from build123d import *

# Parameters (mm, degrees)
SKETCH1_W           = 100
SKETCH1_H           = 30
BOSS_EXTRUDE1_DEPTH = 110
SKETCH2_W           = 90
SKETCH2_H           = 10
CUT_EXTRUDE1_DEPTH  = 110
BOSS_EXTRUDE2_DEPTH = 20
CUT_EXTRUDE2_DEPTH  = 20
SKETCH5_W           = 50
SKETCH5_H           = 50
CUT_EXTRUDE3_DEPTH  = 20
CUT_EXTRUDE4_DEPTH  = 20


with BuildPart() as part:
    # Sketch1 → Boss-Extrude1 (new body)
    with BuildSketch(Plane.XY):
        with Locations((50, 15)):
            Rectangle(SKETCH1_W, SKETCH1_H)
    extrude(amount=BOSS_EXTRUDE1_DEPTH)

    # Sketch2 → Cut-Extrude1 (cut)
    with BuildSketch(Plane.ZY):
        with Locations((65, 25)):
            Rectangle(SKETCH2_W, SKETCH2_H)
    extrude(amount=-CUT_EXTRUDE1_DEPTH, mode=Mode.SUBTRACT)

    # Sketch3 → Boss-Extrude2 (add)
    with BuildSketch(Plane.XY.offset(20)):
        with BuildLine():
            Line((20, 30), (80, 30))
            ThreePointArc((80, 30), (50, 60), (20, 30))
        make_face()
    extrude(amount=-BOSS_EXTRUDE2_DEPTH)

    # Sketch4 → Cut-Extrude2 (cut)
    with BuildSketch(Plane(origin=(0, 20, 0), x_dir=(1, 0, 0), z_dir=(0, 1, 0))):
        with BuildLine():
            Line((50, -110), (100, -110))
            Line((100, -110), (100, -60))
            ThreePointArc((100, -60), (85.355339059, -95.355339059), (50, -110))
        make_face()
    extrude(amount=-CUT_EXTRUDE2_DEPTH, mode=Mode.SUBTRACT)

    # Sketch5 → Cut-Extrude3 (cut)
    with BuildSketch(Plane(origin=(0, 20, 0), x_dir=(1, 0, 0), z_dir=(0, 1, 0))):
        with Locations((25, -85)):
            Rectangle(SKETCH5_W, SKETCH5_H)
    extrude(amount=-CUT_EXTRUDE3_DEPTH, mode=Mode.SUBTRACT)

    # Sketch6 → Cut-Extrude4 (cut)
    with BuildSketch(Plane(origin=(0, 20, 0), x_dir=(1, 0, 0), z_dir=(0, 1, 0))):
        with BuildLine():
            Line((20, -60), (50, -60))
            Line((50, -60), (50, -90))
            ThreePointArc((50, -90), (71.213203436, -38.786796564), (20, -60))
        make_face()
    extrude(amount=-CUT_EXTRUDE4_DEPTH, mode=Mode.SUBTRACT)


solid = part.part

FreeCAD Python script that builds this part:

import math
import FreeCAD as App
import Part
import Sketcher
from FreeCAD import Vector
Q = App.Units.Quantity

doc = App.newDocument("Part")
body = doc.addObject("PartDesign::Body", "Body")

# Sketch on XY plane
sketch1 = doc.addObject("Sketcher::SketchObject", "Sketch")
body.addObject(sketch1)
sketch1.AttachmentSupport = (doc.XY_Plane, [""])
sketch1.MapMode = "FlatFace"
sketch1.addGeometry(Part.LineSegment(Vector(0, 30, 0), Vector(0, 0, 0)), False)
sketch1.addGeometry(Part.LineSegment(Vector(0, 0, 0), Vector(100, 0, 0)), False)
sketch1.addGeometry(Part.LineSegment(Vector(100, 0, 0), Vector(100, 30, 0)), False)
sketch1.addGeometry(Part.LineSegment(Vector(100, 30, 0), Vector(0, 30, 0)), False)
sketch1.addConstraint(Sketcher.Constraint("Coincident", 0, 2, 1, 1))
sketch1.addConstraint(Sketcher.Constraint("Coincident", 1, 2, 2, 1))
sketch1.addConstraint(Sketcher.Constraint("Coincident", 2, 2, 3, 1))
sketch1.addConstraint(Sketcher.Constraint("Coincident", 3, 2, 0, 1))
sketch1.addConstraint(Sketcher.Constraint("Vertical", 0))
sketch1.addConstraint(Sketcher.Constraint("Horizontal", 1))
sketch1.addConstraint(Sketcher.Constraint("Vertical", 2))
sketch1.addConstraint(Sketcher.Constraint("Horizontal", 3))
sketch1.addConstraint(Sketcher.Constraint("Coincident", 0, 2, -1, 1))
sketch1.addConstraint(Sketcher.Constraint("DistanceX", 1, 1, 1, 2, Q("100 mm")))
sketch1.addConstraint(Sketcher.Constraint("DistanceY", 0, 2, 0, 1, Q("30 mm")))
pad1 = doc.addObject("PartDesign::Pad", "Pad")
body.addObject(pad1)
pad1.Profile = sketch1
pad1.Length = 110

# Sketch on YZ plane
sketch2 = doc.addObject("Sketcher::SketchObject", "Sketch001")
body.addObject(sketch2)
sketch2.AttachmentSupport = (doc.YZ_Plane, [""])
sketch2.MapMode = "FlatFace"
sketch2.addGeometry(Part.LineSegment(Vector(30, 20, 0), Vector(20, 20, 0)), False)
sketch2.addGeometry(Part.LineSegment(Vector(20, 20, 0), Vector(20, 110, 0)), False)
sketch2.addGeometry(Part.LineSegment(Vector(20, 110, 0), Vector(30, 110, 0)), False)
sketch2.addGeometry(Part.LineSegment(Vector(30, 110, 0), Vector(30, 20, 0)), False)
sketch2.addConstraint(Sketcher.Constraint("Coincident", 0, 2, 1, 1))
sketch2.addConstraint(Sketcher.Constraint("Coincident", 1, 2, 2, 1))
sketch2.addConstraint(Sketcher.Constraint("Coincident", 2, 2, 3, 1))
sketch2.addConstraint(Sketcher.Constraint("Coincident", 3, 2, 0, 1))
sketch2.addConstraint(Sketcher.Constraint("Horizontal", 0))
sketch2.addConstraint(Sketcher.Constraint("Vertical", 1))
sketch2.addConstraint(Sketcher.Constraint("Horizontal", 2))
sketch2.addConstraint(Sketcher.Constraint("Vertical", 3))
sketch2.addConstraint(Sketcher.Constraint("DistanceX", 0, 2, 0, 1, Q("10 mm")))
sketch2.addConstraint(Sketcher.Constraint("DistanceY", 1, 1, 1, 2, Q("90 mm")))
sketch2.addConstraint(Sketcher.Constraint("DistanceX", -1, 1, 0, 2, Q("20 mm")))
sketch2.addConstraint(Sketcher.Constraint("DistanceY", -1, 1, 0, 2, Q("20 mm")))
pocket1 = doc.addObject("PartDesign::Pocket", "Pocket")
body.addObject(pocket1)
pocket1.Profile = sketch2
pocket1.Length = 110
pocket1.Reversed = True

# Sketch on XY plane
sketch3 = doc.addObject("Sketcher::SketchObject", "Sketch002")
body.addObject(sketch3)
sketch3.AttachmentSupport = (doc.XY_Plane, [""])
sketch3.MapMode = "FlatFace"
sketch3.AttachmentOffset = App.Placement(Vector(0, 0, 20), App.Rotation())
sketch3.addGeometry(Part.LineSegment(Vector(20, 30, 0), Vector(80, 30, 0)), False)
sketch3.addGeometry(Part.ArcOfCircle(Part.Circle(Vector(50, 30, 0), Vector(0, 0, 1), 30), math.radians(0), math.radians(180)), False)
sketch3.addConstraint(Sketcher.Constraint("Coincident", 0, 1, 1, 2))
sketch3.addConstraint(Sketcher.Constraint("Coincident", 1, 1, 0, 2))
sketch3.addConstraint(Sketcher.Constraint("Horizontal", 0))
sketch3.addConstraint(Sketcher.Constraint("Horizontal", 1, 3, 0, 1))
sketch3.addConstraint(Sketcher.Constraint("Radius", 1, Q("30 mm")))
sketch3.addConstraint(Sketcher.Constraint("DistanceX", -1, 1, 1, 3, Q("50 mm")))
sketch3.addConstraint(Sketcher.Constraint("DistanceY", -1, 1, 1, 3, Q("30 mm")))
pad2 = doc.addObject("PartDesign::Pad", "Pad001")
body.addObject(pad2)
pad2.Profile = sketch3
pad2.Length = 20
pad2.Reversed = True

# Sketch on XZ plane
sketch4 = doc.addObject("Sketcher::SketchObject", "Sketch003")
body.addObject(sketch4)
sketch4.AttachmentSupport = (doc.XZ_Plane, [""])
sketch4.MapMode = "FlatFace"
sketch4.AttachmentOffset = App.Placement(Vector(0, 0, -20), App.Rotation())
sketch4.addGeometry(Part.LineSegment(Vector(50, 110, 0), Vector(100, 110, 0)), False)
sketch4.addGeometry(Part.LineSegment(Vector(100, 110, 0), Vector(100, 60, 0)), False)
sketch4.addGeometry(Part.ArcOfCircle(Part.Circle(Vector(50, 60, 0), Vector(0, 0, 1), 50), math.radians(0), math.radians(90)), False)
sketch4.addConstraint(Sketcher.Constraint("Coincident", 0, 2, 1, 1))
sketch4.addConstraint(Sketcher.Constraint("Tangent", 1, 2, 2, 1))
sketch4.addConstraint(Sketcher.Constraint("Tangent", 2, 2, 0, 1))
sketch4.addConstraint(Sketcher.Constraint("Horizontal", 0))
sketch4.addConstraint(Sketcher.Constraint("Vertical", 1))
sketch4.addConstraint(Sketcher.Constraint("Radius", 2, Q("50 mm")))
sketch4.addConstraint(Sketcher.Constraint("DistanceX", -1, 1, 2, 3, Q("50 mm")))
sketch4.addConstraint(Sketcher.Constraint("DistanceY", -1, 1, 2, 3, Q("60 mm")))
pocket2 = doc.addObject("PartDesign::Pocket", "Pocket001")
body.addObject(pocket2)
pocket2.Profile = sketch4
pocket2.Length = 20
pocket2.Reversed = True

# Sketch on XZ plane
sketch5 = doc.addObject("Sketcher::SketchObject", "Sketch004")
body.addObject(sketch5)
sketch5.AttachmentSupport = (doc.XZ_Plane, [""])
sketch5.MapMode = "FlatFace"
sketch5.AttachmentOffset = App.Placement(Vector(0, 0, -20), App.Rotation())
sketch5.addGeometry(Part.LineSegment(Vector(0, 60, 0), Vector(0, 110, 0)), False)
sketch5.addGeometry(Part.LineSegment(Vector(0, 110, 0), Vector(50, 110, 0)), False)
sketch5.addGeometry(Part.LineSegment(Vector(50, 110, 0), Vector(50, 60, 0)), False)
sketch5.addGeometry(Part.LineSegment(Vector(50, 60, 0), Vector(0, 60, 0)), False)
sketch5.addConstraint(Sketcher.Constraint("Coincident", 0, 2, 1, 1))
sketch5.addConstraint(Sketcher.Constraint("Coincident", 1, 2, 2, 1))
sketch5.addConstraint(Sketcher.Constraint("Coincident", 2, 2, 3, 1))
sketch5.addConstraint(Sketcher.Constraint("Coincident", 3, 2, 0, 1))
sketch5.addConstraint(Sketcher.Constraint("Vertical", 0))
sketch5.addConstraint(Sketcher.Constraint("Horizontal", 1))
sketch5.addConstraint(Sketcher.Constraint("Vertical", 2))
sketch5.addConstraint(Sketcher.Constraint("Horizontal", 3))
sketch5.addConstraint(Sketcher.Constraint("PointOnObject", 0, 2, -2))
sketch5.addConstraint(Sketcher.Constraint("Equal", 3, 0))
sketch5.addConstraint(Sketcher.Constraint("DistanceX", 1, 1, 1, 2, Q("50 mm")))
sketch5.addConstraint(Sketcher.Constraint("DistanceY", -1, 1, 0, 2, Q("110 mm")))
pocket3 = doc.addObject("PartDesign::Pocket", "Pocket002")
body.addObject(pocket3)
pocket3.Profile = sketch5
pocket3.Length = 20
pocket3.Reversed = True

# Sketch on XZ plane
sketch6 = doc.addObject("Sketcher::SketchObject", "Sketch005")
body.addObject(sketch6)
sketch6.AttachmentSupport = (doc.XZ_Plane, [""])
sketch6.MapMode = "FlatFace"
sketch6.AttachmentOffset = App.Placement(Vector(0, 0, -20), App.Rotation())
sketch6.addGeometry(Part.LineSegment(Vector(20, 60, 0), Vector(50, 60, 0)), False)
sketch6.addGeometry(Part.LineSegment(Vector(50, 60, 0), Vector(50, 90, 0)), False)
sketch6.addGeometry(Part.ArcOfCircle(Part.Circle(Vector(50, 60, 0), Vector(0, 0, 1), 30), math.radians(180), math.radians(450)), False)
sketch6.addConstraint(Sketcher.Constraint("Coincident", 0, 2, 1, 1))
sketch6.addConstraint(Sketcher.Constraint("Coincident", 1, 2, 2, 2))
sketch6.addConstraint(Sketcher.Constraint("Coincident", 2, 1, 0, 1))
sketch6.addConstraint(Sketcher.Constraint("Horizontal", 0))
sketch6.addConstraint(Sketcher.Constraint("Vertical", 1))
sketch6.addConstraint(Sketcher.Constraint("Coincident", 0, 2, 2, 3))
sketch6.addConstraint(Sketcher.Constraint("Radius", 2, Q("30 mm")))
sketch6.addConstraint(Sketcher.Constraint("DistanceX", -1, 1, 2, 3, Q("50 mm")))
sketch6.addConstraint(Sketcher.Constraint("DistanceY", -1, 1, 2, 3, Q("60 mm")))
pocket4 = doc.addObject("PartDesign::Pocket", "Pocket003")
body.addObject(pocket4)
pocket4.Profile = sketch6
pocket4.Length = 20
pocket4.Reversed = True

doc.recompute()
